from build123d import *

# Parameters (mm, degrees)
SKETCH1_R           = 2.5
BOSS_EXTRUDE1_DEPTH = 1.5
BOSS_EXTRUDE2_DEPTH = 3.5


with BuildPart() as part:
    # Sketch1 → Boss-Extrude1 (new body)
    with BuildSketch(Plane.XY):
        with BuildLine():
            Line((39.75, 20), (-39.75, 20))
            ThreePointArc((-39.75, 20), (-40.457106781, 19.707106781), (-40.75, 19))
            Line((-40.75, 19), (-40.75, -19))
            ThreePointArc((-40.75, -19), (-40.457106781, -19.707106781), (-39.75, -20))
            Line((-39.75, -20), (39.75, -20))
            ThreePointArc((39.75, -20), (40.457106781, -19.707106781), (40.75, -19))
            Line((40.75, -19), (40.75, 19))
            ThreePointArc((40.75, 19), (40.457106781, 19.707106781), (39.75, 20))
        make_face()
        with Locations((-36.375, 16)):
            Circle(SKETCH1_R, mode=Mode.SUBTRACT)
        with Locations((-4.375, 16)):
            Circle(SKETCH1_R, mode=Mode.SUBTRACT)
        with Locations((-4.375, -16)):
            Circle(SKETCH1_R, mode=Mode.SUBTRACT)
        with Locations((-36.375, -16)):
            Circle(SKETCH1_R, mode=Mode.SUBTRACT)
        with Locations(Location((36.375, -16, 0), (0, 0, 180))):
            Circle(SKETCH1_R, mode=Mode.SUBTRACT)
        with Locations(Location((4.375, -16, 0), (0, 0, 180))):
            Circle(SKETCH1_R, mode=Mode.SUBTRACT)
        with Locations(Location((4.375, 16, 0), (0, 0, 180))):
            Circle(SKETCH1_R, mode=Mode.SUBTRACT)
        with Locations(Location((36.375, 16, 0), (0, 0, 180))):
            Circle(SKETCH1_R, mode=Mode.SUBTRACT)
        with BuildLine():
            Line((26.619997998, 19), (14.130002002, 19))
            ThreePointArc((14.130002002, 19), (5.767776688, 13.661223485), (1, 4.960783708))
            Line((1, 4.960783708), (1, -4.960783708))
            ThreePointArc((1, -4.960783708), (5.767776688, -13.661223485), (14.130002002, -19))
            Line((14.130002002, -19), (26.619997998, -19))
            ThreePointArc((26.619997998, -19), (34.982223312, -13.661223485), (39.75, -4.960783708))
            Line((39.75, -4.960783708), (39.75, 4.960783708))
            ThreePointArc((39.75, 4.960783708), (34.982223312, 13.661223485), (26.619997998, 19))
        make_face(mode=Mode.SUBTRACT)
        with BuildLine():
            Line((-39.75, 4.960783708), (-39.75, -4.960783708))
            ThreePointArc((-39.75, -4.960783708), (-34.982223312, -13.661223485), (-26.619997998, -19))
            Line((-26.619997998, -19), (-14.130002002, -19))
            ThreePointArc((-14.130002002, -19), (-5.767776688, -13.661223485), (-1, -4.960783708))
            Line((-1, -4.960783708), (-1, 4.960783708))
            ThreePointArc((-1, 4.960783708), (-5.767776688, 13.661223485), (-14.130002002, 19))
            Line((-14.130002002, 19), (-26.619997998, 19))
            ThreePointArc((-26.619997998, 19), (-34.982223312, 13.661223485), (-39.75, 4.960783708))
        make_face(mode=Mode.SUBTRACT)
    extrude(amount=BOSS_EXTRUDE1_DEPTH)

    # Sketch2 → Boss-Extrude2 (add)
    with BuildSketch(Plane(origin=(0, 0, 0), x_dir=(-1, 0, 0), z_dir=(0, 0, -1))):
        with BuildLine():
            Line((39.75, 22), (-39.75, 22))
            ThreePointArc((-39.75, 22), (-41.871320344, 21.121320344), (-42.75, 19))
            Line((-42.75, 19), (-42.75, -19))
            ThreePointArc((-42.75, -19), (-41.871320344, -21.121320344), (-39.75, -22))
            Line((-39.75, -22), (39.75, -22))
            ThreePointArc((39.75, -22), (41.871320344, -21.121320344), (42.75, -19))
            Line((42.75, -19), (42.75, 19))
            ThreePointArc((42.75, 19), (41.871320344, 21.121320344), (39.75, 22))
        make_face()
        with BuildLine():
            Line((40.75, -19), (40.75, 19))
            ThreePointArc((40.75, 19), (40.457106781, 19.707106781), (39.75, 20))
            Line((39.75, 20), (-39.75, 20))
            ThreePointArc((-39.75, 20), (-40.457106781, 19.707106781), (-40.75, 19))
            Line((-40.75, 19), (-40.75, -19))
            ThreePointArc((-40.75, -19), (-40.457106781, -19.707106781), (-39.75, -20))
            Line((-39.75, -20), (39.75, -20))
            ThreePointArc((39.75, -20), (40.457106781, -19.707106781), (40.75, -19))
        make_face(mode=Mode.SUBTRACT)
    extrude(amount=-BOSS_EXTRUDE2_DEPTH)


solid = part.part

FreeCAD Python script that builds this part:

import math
import FreeCAD as App
import Part
import Sketcher

V = App.Vector
Q = App.Units.Quantity

doc = App.newDocument("Part")
body = doc.addObject("PartDesign::Body", "Body")

sketch1 = body.newObject("Sketcher::SketchObject", "Sketch")
sketch1.AttachmentSupport = (doc.getObject("XY_Plane"), [""])
sketch1.MapMode = "FlatFace"
sketch1.addGeometry([
    Part.LineSegment(V(39.8, 20, 0), V(-39.8, 20, 0)),
    Part.ArcOfCircle(Part.Circle(V(-39.7, 19, 0), V(0, 0, 1), 1), math.radians(90), math.radians(180)),
    Part.LineSegment(V(-40.8, 19, 0), V(-40.8, -19, 0)),
    Part.ArcOfCircle(Part.Circle(V(-39.7, -19, 0), V(0, 0, 1), 1), math.radians(-180), math.radians(-90)),
    Part.LineSegment(V(-39.8, -20, 0), V(39.8, -20, 0)),
    Part.ArcOfCircle(Part.Circle(V(39.7, -19, 0), V(0, 0, 1), 1), math.radians(-90), math.radians(0)),
    Part.LineSegment(V(40.8, -19, 0), V(40.8, 19, 0)),
    Part.ArcOfCircle(Part.Circle(V(39.7, 19, 0), V(0, 0, 1), 1), math.radians(0), math.radians(90)),
    Part.Circle(V(-36.4, -16, 0), V(0, 0, 1), 2.5),
    Part.Circle(V(-4.4, -16, 0), V(0, 0, 1), 2.5),
    Part.Circle(V(4.4, -16, 0), V(0, 0, 1), 2.5),
    Part.Circle(V(36.4, -16, 0), V(0, 0, 1), 2.5),
    Part.LineSegment(V(-39.8, -5, 0), V(-39.8, 5, 0)),
    Part.ArcOfCircle(Part.Circle(V(-20.4, 0, 0), V(0, 0, 1), 20), math.radians(108), math.radians(166)),
    Part.LineSegment(V(-26.6, 19, 0), V(-14.1, 19, 0)),
    Part.ArcOfCircle(Part.Circle(V(-20.4, 0, 0), V(0, 0, 1), 20), math.radians(14), math.radians(72)),
    Part.LineSegment(V(-1, 5, 0), V(-1, -5, 0)),
    Part.ArcOfCircle(Part.Circle(V(-20.4, 0, 0), V(0, 0, 1), 20), math.radians(-72), math.radians(-14)),
    Part.LineSegment(V(-14.1, -19, 0), V(-26.6, -19, 0)),
    Part.ArcOfCircle(Part.Circle(V(-20.4, 0, 0), V(0, 0, 1), 20), math.radians(-166), math.radians(-108)),
    Part.Circle(V(-36.4, 16, 0), V(0, 0, 1), 2.5),
    Part.Circle(V(-4.4, 16, 0), V(0, 0, 1), 2.5),
    Part.LineSegment(V(14.1, 19, 0), V(26.6, 19, 0)),
    Part.ArcOfCircle(Part.Circle(V(20.4, 0, 0), V(0, 0, 1), 20), math.radians(14), math.radians(72)),
    Part.LineSegment(V(39.8, 5, 0), V(39.8, -5, 0)),
    Part.ArcOfCircle(Part.Circle(V(20.4, 0, 0), V(0, 0, 1), 20), math.radians(-72), math.radians(-14)),
    Part.LineSegment(V(26.6, -19, 0), V(14.1, -19, 0)),
    Part.ArcOfCircle(Part.Circle(V(20.4, 0, 0), V(0, 0, 1), 20), math.radians(-166), math.radians(-108)),
    Part.LineSegment(V(1, -5, 0), V(1, 5, 0)),
    Part.ArcOfCircle(Part.Circle(V(20.4, 0, 0), V(0, 0, 1), 20), math.radians(108), math.radians(166)),
    Part.Circle(V(4.4, 16, 0), V(0, 0, 1), 2.5),
    Part.Circle(V(36.4, 16, 0), V(0, 0, 1), 2.5),
], False)
sketch1.addConstraint([
    Sketcher.Constraint("Tangent", 0, 2, 1, 1),
    Sketcher.Constraint("Tangent", 1, 2, 2, 1),
    Sketcher.Constraint("Tangent", 2, 2, 3, 1),
    Sketcher.Constraint("Tangent", 3, 2, 4, 1),
    Sketcher.Constraint("Tangent", 4, 2, 5, 1),
    Sketcher.Constraint("Tangent", 5, 2, 6, 1),
    Sketcher.Constraint("Tangent", 6, 2, 7, 1),
    Sketcher.Constraint("Tangent", 7, 2, 0, 1),
    Sketcher.Constraint("Coincident", 12, 2, 13, 2),
    Sketcher.Constraint("Coincident", 13, 1, 14, 1),
    Sketcher.Constraint("Coincident", 14, 2, 15, 2),
    Sketcher.Constraint("Coincident", 15, 1, 16, 1),
    Sketcher.Constraint("Coincident", 16, 2, 17, 2),
    Sketcher.Constraint("Coincident", 17, 1, 18, 1),
    Sketcher.Constraint("Coincident", 18, 2, 19, 2),
    Sketcher.Constraint("Coincident", 19, 1, 12, 1),
    Sketcher.Constraint("Coincident", 22, 2, 23, 2),
    Sketcher.Constraint("Coincident", 23, 1, 24, 1),
    Sketcher.Constraint("Coincident", 24, 2, 25, 2),
    Sketcher.Constraint("Coincident", 25, 1, 26, 1),
    Sketcher.Constraint("Coincident", 26, 2, 27, 2),
    Sketcher.Constraint("Coincident", 27, 1, 28, 1),
    Sketcher.Constraint("Coincident", 28, 2, 29, 2),
    Sketcher.Constraint("Coincident", 29, 1, 22, 1),
    Sketcher.Constraint("Horizontal", 0),
    Sketcher.Constraint("Vertical", 2),
    Sketcher.Constraint("Horizontal", 4),
    Sketcher.Constraint("Vertical", 6),
    Sketcher.Constraint("Vertical", 12),
    Sketcher.Constraint("Horizontal", 14),
    Sketcher.Constraint("Vertical", 16),
    Sketcher.Constraint("Horizontal", 18),
    Sketcher.Constraint("Horizontal", 22),
    Sketcher.Constraint("Vertical", 24),
    Sketcher.Constraint("Horizontal", 26),
    Sketcher.Constraint("Vertical", 28),
    Sketcher.Constraint("Coincident", 15, 3, 13, 3),
    Sketcher.Constraint("Coincident", 17, 3, 13, 3),
    Sketcher.Constraint("Coincident", 19, 3, 13, 3),
    Sketcher.Constraint("Coincident", 25, 3, 23, 3),
    Sketcher.Constraint("Coincident", 27, 3, 23, 3),
    Sketcher.Constraint("Coincident", 29, 3, 23, 3),
    Sketcher.Constraint("Equal", 1, 3),
    Sketcher.Constraint("Equal", 3, 5),
    Sketcher.Constraint("Equal", 5, 7),
    Sketcher.Constraint("Equal", 8, 9),
    Sketcher.Constraint("Equal", 9, 10),
    Sketcher.Constraint("Equal", 10, 11),
    Sketcher.Constraint("Equal", 13, 15),
    Sketcher.Constraint("Equal", 15, 17),
    Sketcher.Constraint("Equal", 17, 19),
    Sketcher.Constraint("Equal", 11, 20),
    Sketcher.Constraint("Equal", 20, 21),
    Sketcher.Constraint("Equal", 19, 23),
    Sketcher.Constraint("Equal", 23, 25),
    Sketcher.Constraint("Equal", 25, 27),
    Sketcher.Constraint("Equal", 27, 29),
    Sketcher.Constraint("Equal", 21, 30),
    Sketcher.Constraint("Equal", 30, 31),
    Sketcher.Constraint("Symmetric", 1, 3, 5, 3, -1, 1),
    Sketcher.Constraint("Symmetric", 11, 3, 20, 3, -1, 1),
    Sketcher.Constraint("Symmetric", 10, 3, 21, 3, -1, 1),
    Sketcher.Constraint("Symmetric", 13, 3, 23, 3, -1, 1),
    Sketcher.Constraint("Symmetric", 9, 3, 30, 3, -1, 1),
    Sketcher.Constraint("Symmetric", 8, 3, 31, 3, -1, 1),
    Sketcher.Constraint("Symmetric", 9, 3, 10, 3, -2),
    Sketcher.Constraint("Symmetric", 8, 3, 11, 3, -2),
    Sketcher.Constraint("Symmetric", 13, 1, 22, 2, -2),
    Sketcher.Constraint("Horizontal", 8, 3, 9, 3),
    Sketcher.Constraint("Horizontal", 6, 2, 13, 1),
    Sketcher.Constraint("Horizontal", 12, 2, 15, 1),
    Sketcher.Constraint("Horizontal", 5, 2, 17, 1),
    Sketcher.Constraint("Horizontal", 15, 1, 23, 1),
    Sketcher.Constraint("Horizontal", 18, 2, 25, 1),
    Sketcher.Constraint("Horizontal", 24, 2, 27, 1),
    Sketcher.Constraint("Vertical", 3, 2, 12, 2),
    Sketcher.Constraint("Diameter", 8, Q("5 mm")),
    Sketcher.Constraint("Radius", 1, Q("1 mm")),
    Sketcher.Constraint("Radius", 13, Q("20 mm")),
    Sketcher.Constraint("DistanceY", 2, 2, 2, 1, Q("38 mm")),
    Sketcher.Constraint("DistanceX", 0, 2, 0, 1, Q("79.5 mm")),
    Sketcher.Constraint("DistanceY", 8, 3, -1, 1, Q("16 mm")),
    Sketcher.Constraint("DistanceX", 15, 1, -1, 1, Q("1 mm")),
    Sketcher.Constraint("DistanceX", 8, 3, 9, 3, Q("32 mm")),
    Sketcher.Constraint("DistanceX", 8, 3, 13, 3, Q("16 mm")),
])
pad1 = body.newObject("PartDesign::Pad", "Pad")
pad1.Profile = sketch1
pad1.Length = 1.5

sketch2 = body.newObject("Sketcher::SketchObject", "Sketch001")
sketch2.AttachmentSupport = (doc.getObject("XY_Plane"), [""])
sketch2.MapMode = "FlatFace"
sketch2.addGeometry([
    Part.LineSegment(V(-39.8, 22, 0), V(39.8, 22, 0)),
    Part.ArcOfCircle(Part.Circle(V(39.8, 19, 0), V(0, 0, 1), 3), math.radians(0), math.radians(90)),
    Part.LineSegment(V(42.8, 19, 0), V(42.8, -19, 0)),
    Part.ArcOfCircle(Part.Circle(V(39.8, -19, 0), V(0, 0, 1), 3), math.radians(-90), math.radians(0)),
    Part.LineSegment(V(39.8, -22, 0), V(-39.8, -22, 0)),
    Part.ArcOfCircle(Part.Circle(V(-39.8, -19, 0), V(0, 0, 1), 3), math.radians(180), math.radians(270)),
    Part.LineSegment(V(-42.8, -19, 0), V(-42.8, 19, 0)),
    Part.ArcOfCircle(Part.Circle(V(-39.8, 19, 0), V(0, 0, 1), 3), math.radians(90), math.radians(180)),
    Part.LineSegment(V(-40.8, 19, 0), V(-40.8, -19, 0)),
    Part.ArcOfCircle(Part.Circle(V(-39.7, -19, 0), V(0, 0, 1), 1), math.radians(-180), math.radians(-90)),
    Part.LineSegment(V(-39.8, -20, 0), V(39.8, -20, 0)),
    Part.ArcOfCircle(Part.Circle(V(39.7, -19, 0), V(0, 0, 1), 1), math.radians(-90), math.radians(0)),
    Part.LineSegment(V(40.8, -19, 0), V(40.8, 19, 0)),
    Part.ArcOfCircle(Part.Circle(V(39.7, 19, 0), V(0, 0, 1), 1), math.radians(0), math.radians(90)),
    Part.LineSegment(V(39.8, 20, 0), V(-39.8, 20, 0)),
    Part.ArcOfCircle(Part.Circle(V(-39.7, 19, 0), V(0, 0, 1), 1), math.radians(90), math.radians(180)),
], False)
sketch2.addConstraint([
    Sketcher.Constraint("Tangent", 0, 2, 1, 2),
    Sketcher.Constraint("Tangent", 1, 1, 2, 1),
    Sketcher.Constraint("Tangent", 2, 2, 3, 2),
    Sketcher.Constraint("Tangent", 3, 1, 4, 1),
    Sketcher.Constraint("Tangent", 4, 2, 5, 2),
    Sketcher.Constraint("Tangent", 5, 1, 6, 1),
    Sketcher.Constraint("Tangent", 6, 2, 7, 2),
    Sketcher.Constraint("Tangent", 7, 1, 0, 1),
    Sketcher.Constraint("Tangent", 8, 2, 9, 1),
    Sketcher.Constraint("Tangent", 9, 2, 10, 1),
    Sketcher.Constraint("Tangent", 10, 2, 11, 1),
    Sketcher.Constraint("Tangent", 11, 2, 12, 1),
    Sketcher.Constraint("Tangent", 12, 2, 13, 1),
    Sketcher.Constraint("Tangent", 13, 2, 14, 1),
    Sketcher.Constraint("Tangent", 14, 2, 15, 1),
    Sketcher.Constraint("Tangent", 15, 2, 8, 1),
    Sketcher.Constraint("Horizontal", 0),
    Sketcher.Constraint("Vertical", 2),
    Sketcher.Constraint("Horizontal", 4),
    Sketcher.Constraint("Vertical", 6),
    Sketcher.Constraint("Vertical", 8),
    Sketcher.Constraint("Horizontal", 10),
    Sketcher.Constraint("Vertical", 12),
    Sketcher.Constraint("Horizontal", 14),
    Sketcher.Constraint("Coincident", 9, 3, 5, 3),
    Sketcher.Constraint("Coincident", 11, 3, 3, 3),
    Sketcher.Constraint("Coincident", 13, 3, 1, 3),
    Sketcher.Constraint("Equal", 1, 3),
    Sketcher.Constraint("Equal", 3, 5),
    Sketcher.Constraint("Equal", 5, 7),
    Sketcher.Constraint("Equal", 13, 15),
    Sketcher.Constraint("Symmetric", 1, 3, 5, 3, -1, 1),
    Sketcher.Constraint("Radius", 1, Q("3 mm")),
    Sketcher.Constraint("Radius", 9, Q("1 mm")),
    Sketcher.Constraint("DistanceY", 2, 2, 2, 1, Q("38 mm")),
    Sketcher.Constraint("DistanceX", 0, 1, 0, 2, Q("79.5 mm")),
])
pad2 = body.newObject("PartDesign::Pad", "Pad001")
pad2.Profile = sketch2
pad2.Length = 3.5

doc.recompute()
